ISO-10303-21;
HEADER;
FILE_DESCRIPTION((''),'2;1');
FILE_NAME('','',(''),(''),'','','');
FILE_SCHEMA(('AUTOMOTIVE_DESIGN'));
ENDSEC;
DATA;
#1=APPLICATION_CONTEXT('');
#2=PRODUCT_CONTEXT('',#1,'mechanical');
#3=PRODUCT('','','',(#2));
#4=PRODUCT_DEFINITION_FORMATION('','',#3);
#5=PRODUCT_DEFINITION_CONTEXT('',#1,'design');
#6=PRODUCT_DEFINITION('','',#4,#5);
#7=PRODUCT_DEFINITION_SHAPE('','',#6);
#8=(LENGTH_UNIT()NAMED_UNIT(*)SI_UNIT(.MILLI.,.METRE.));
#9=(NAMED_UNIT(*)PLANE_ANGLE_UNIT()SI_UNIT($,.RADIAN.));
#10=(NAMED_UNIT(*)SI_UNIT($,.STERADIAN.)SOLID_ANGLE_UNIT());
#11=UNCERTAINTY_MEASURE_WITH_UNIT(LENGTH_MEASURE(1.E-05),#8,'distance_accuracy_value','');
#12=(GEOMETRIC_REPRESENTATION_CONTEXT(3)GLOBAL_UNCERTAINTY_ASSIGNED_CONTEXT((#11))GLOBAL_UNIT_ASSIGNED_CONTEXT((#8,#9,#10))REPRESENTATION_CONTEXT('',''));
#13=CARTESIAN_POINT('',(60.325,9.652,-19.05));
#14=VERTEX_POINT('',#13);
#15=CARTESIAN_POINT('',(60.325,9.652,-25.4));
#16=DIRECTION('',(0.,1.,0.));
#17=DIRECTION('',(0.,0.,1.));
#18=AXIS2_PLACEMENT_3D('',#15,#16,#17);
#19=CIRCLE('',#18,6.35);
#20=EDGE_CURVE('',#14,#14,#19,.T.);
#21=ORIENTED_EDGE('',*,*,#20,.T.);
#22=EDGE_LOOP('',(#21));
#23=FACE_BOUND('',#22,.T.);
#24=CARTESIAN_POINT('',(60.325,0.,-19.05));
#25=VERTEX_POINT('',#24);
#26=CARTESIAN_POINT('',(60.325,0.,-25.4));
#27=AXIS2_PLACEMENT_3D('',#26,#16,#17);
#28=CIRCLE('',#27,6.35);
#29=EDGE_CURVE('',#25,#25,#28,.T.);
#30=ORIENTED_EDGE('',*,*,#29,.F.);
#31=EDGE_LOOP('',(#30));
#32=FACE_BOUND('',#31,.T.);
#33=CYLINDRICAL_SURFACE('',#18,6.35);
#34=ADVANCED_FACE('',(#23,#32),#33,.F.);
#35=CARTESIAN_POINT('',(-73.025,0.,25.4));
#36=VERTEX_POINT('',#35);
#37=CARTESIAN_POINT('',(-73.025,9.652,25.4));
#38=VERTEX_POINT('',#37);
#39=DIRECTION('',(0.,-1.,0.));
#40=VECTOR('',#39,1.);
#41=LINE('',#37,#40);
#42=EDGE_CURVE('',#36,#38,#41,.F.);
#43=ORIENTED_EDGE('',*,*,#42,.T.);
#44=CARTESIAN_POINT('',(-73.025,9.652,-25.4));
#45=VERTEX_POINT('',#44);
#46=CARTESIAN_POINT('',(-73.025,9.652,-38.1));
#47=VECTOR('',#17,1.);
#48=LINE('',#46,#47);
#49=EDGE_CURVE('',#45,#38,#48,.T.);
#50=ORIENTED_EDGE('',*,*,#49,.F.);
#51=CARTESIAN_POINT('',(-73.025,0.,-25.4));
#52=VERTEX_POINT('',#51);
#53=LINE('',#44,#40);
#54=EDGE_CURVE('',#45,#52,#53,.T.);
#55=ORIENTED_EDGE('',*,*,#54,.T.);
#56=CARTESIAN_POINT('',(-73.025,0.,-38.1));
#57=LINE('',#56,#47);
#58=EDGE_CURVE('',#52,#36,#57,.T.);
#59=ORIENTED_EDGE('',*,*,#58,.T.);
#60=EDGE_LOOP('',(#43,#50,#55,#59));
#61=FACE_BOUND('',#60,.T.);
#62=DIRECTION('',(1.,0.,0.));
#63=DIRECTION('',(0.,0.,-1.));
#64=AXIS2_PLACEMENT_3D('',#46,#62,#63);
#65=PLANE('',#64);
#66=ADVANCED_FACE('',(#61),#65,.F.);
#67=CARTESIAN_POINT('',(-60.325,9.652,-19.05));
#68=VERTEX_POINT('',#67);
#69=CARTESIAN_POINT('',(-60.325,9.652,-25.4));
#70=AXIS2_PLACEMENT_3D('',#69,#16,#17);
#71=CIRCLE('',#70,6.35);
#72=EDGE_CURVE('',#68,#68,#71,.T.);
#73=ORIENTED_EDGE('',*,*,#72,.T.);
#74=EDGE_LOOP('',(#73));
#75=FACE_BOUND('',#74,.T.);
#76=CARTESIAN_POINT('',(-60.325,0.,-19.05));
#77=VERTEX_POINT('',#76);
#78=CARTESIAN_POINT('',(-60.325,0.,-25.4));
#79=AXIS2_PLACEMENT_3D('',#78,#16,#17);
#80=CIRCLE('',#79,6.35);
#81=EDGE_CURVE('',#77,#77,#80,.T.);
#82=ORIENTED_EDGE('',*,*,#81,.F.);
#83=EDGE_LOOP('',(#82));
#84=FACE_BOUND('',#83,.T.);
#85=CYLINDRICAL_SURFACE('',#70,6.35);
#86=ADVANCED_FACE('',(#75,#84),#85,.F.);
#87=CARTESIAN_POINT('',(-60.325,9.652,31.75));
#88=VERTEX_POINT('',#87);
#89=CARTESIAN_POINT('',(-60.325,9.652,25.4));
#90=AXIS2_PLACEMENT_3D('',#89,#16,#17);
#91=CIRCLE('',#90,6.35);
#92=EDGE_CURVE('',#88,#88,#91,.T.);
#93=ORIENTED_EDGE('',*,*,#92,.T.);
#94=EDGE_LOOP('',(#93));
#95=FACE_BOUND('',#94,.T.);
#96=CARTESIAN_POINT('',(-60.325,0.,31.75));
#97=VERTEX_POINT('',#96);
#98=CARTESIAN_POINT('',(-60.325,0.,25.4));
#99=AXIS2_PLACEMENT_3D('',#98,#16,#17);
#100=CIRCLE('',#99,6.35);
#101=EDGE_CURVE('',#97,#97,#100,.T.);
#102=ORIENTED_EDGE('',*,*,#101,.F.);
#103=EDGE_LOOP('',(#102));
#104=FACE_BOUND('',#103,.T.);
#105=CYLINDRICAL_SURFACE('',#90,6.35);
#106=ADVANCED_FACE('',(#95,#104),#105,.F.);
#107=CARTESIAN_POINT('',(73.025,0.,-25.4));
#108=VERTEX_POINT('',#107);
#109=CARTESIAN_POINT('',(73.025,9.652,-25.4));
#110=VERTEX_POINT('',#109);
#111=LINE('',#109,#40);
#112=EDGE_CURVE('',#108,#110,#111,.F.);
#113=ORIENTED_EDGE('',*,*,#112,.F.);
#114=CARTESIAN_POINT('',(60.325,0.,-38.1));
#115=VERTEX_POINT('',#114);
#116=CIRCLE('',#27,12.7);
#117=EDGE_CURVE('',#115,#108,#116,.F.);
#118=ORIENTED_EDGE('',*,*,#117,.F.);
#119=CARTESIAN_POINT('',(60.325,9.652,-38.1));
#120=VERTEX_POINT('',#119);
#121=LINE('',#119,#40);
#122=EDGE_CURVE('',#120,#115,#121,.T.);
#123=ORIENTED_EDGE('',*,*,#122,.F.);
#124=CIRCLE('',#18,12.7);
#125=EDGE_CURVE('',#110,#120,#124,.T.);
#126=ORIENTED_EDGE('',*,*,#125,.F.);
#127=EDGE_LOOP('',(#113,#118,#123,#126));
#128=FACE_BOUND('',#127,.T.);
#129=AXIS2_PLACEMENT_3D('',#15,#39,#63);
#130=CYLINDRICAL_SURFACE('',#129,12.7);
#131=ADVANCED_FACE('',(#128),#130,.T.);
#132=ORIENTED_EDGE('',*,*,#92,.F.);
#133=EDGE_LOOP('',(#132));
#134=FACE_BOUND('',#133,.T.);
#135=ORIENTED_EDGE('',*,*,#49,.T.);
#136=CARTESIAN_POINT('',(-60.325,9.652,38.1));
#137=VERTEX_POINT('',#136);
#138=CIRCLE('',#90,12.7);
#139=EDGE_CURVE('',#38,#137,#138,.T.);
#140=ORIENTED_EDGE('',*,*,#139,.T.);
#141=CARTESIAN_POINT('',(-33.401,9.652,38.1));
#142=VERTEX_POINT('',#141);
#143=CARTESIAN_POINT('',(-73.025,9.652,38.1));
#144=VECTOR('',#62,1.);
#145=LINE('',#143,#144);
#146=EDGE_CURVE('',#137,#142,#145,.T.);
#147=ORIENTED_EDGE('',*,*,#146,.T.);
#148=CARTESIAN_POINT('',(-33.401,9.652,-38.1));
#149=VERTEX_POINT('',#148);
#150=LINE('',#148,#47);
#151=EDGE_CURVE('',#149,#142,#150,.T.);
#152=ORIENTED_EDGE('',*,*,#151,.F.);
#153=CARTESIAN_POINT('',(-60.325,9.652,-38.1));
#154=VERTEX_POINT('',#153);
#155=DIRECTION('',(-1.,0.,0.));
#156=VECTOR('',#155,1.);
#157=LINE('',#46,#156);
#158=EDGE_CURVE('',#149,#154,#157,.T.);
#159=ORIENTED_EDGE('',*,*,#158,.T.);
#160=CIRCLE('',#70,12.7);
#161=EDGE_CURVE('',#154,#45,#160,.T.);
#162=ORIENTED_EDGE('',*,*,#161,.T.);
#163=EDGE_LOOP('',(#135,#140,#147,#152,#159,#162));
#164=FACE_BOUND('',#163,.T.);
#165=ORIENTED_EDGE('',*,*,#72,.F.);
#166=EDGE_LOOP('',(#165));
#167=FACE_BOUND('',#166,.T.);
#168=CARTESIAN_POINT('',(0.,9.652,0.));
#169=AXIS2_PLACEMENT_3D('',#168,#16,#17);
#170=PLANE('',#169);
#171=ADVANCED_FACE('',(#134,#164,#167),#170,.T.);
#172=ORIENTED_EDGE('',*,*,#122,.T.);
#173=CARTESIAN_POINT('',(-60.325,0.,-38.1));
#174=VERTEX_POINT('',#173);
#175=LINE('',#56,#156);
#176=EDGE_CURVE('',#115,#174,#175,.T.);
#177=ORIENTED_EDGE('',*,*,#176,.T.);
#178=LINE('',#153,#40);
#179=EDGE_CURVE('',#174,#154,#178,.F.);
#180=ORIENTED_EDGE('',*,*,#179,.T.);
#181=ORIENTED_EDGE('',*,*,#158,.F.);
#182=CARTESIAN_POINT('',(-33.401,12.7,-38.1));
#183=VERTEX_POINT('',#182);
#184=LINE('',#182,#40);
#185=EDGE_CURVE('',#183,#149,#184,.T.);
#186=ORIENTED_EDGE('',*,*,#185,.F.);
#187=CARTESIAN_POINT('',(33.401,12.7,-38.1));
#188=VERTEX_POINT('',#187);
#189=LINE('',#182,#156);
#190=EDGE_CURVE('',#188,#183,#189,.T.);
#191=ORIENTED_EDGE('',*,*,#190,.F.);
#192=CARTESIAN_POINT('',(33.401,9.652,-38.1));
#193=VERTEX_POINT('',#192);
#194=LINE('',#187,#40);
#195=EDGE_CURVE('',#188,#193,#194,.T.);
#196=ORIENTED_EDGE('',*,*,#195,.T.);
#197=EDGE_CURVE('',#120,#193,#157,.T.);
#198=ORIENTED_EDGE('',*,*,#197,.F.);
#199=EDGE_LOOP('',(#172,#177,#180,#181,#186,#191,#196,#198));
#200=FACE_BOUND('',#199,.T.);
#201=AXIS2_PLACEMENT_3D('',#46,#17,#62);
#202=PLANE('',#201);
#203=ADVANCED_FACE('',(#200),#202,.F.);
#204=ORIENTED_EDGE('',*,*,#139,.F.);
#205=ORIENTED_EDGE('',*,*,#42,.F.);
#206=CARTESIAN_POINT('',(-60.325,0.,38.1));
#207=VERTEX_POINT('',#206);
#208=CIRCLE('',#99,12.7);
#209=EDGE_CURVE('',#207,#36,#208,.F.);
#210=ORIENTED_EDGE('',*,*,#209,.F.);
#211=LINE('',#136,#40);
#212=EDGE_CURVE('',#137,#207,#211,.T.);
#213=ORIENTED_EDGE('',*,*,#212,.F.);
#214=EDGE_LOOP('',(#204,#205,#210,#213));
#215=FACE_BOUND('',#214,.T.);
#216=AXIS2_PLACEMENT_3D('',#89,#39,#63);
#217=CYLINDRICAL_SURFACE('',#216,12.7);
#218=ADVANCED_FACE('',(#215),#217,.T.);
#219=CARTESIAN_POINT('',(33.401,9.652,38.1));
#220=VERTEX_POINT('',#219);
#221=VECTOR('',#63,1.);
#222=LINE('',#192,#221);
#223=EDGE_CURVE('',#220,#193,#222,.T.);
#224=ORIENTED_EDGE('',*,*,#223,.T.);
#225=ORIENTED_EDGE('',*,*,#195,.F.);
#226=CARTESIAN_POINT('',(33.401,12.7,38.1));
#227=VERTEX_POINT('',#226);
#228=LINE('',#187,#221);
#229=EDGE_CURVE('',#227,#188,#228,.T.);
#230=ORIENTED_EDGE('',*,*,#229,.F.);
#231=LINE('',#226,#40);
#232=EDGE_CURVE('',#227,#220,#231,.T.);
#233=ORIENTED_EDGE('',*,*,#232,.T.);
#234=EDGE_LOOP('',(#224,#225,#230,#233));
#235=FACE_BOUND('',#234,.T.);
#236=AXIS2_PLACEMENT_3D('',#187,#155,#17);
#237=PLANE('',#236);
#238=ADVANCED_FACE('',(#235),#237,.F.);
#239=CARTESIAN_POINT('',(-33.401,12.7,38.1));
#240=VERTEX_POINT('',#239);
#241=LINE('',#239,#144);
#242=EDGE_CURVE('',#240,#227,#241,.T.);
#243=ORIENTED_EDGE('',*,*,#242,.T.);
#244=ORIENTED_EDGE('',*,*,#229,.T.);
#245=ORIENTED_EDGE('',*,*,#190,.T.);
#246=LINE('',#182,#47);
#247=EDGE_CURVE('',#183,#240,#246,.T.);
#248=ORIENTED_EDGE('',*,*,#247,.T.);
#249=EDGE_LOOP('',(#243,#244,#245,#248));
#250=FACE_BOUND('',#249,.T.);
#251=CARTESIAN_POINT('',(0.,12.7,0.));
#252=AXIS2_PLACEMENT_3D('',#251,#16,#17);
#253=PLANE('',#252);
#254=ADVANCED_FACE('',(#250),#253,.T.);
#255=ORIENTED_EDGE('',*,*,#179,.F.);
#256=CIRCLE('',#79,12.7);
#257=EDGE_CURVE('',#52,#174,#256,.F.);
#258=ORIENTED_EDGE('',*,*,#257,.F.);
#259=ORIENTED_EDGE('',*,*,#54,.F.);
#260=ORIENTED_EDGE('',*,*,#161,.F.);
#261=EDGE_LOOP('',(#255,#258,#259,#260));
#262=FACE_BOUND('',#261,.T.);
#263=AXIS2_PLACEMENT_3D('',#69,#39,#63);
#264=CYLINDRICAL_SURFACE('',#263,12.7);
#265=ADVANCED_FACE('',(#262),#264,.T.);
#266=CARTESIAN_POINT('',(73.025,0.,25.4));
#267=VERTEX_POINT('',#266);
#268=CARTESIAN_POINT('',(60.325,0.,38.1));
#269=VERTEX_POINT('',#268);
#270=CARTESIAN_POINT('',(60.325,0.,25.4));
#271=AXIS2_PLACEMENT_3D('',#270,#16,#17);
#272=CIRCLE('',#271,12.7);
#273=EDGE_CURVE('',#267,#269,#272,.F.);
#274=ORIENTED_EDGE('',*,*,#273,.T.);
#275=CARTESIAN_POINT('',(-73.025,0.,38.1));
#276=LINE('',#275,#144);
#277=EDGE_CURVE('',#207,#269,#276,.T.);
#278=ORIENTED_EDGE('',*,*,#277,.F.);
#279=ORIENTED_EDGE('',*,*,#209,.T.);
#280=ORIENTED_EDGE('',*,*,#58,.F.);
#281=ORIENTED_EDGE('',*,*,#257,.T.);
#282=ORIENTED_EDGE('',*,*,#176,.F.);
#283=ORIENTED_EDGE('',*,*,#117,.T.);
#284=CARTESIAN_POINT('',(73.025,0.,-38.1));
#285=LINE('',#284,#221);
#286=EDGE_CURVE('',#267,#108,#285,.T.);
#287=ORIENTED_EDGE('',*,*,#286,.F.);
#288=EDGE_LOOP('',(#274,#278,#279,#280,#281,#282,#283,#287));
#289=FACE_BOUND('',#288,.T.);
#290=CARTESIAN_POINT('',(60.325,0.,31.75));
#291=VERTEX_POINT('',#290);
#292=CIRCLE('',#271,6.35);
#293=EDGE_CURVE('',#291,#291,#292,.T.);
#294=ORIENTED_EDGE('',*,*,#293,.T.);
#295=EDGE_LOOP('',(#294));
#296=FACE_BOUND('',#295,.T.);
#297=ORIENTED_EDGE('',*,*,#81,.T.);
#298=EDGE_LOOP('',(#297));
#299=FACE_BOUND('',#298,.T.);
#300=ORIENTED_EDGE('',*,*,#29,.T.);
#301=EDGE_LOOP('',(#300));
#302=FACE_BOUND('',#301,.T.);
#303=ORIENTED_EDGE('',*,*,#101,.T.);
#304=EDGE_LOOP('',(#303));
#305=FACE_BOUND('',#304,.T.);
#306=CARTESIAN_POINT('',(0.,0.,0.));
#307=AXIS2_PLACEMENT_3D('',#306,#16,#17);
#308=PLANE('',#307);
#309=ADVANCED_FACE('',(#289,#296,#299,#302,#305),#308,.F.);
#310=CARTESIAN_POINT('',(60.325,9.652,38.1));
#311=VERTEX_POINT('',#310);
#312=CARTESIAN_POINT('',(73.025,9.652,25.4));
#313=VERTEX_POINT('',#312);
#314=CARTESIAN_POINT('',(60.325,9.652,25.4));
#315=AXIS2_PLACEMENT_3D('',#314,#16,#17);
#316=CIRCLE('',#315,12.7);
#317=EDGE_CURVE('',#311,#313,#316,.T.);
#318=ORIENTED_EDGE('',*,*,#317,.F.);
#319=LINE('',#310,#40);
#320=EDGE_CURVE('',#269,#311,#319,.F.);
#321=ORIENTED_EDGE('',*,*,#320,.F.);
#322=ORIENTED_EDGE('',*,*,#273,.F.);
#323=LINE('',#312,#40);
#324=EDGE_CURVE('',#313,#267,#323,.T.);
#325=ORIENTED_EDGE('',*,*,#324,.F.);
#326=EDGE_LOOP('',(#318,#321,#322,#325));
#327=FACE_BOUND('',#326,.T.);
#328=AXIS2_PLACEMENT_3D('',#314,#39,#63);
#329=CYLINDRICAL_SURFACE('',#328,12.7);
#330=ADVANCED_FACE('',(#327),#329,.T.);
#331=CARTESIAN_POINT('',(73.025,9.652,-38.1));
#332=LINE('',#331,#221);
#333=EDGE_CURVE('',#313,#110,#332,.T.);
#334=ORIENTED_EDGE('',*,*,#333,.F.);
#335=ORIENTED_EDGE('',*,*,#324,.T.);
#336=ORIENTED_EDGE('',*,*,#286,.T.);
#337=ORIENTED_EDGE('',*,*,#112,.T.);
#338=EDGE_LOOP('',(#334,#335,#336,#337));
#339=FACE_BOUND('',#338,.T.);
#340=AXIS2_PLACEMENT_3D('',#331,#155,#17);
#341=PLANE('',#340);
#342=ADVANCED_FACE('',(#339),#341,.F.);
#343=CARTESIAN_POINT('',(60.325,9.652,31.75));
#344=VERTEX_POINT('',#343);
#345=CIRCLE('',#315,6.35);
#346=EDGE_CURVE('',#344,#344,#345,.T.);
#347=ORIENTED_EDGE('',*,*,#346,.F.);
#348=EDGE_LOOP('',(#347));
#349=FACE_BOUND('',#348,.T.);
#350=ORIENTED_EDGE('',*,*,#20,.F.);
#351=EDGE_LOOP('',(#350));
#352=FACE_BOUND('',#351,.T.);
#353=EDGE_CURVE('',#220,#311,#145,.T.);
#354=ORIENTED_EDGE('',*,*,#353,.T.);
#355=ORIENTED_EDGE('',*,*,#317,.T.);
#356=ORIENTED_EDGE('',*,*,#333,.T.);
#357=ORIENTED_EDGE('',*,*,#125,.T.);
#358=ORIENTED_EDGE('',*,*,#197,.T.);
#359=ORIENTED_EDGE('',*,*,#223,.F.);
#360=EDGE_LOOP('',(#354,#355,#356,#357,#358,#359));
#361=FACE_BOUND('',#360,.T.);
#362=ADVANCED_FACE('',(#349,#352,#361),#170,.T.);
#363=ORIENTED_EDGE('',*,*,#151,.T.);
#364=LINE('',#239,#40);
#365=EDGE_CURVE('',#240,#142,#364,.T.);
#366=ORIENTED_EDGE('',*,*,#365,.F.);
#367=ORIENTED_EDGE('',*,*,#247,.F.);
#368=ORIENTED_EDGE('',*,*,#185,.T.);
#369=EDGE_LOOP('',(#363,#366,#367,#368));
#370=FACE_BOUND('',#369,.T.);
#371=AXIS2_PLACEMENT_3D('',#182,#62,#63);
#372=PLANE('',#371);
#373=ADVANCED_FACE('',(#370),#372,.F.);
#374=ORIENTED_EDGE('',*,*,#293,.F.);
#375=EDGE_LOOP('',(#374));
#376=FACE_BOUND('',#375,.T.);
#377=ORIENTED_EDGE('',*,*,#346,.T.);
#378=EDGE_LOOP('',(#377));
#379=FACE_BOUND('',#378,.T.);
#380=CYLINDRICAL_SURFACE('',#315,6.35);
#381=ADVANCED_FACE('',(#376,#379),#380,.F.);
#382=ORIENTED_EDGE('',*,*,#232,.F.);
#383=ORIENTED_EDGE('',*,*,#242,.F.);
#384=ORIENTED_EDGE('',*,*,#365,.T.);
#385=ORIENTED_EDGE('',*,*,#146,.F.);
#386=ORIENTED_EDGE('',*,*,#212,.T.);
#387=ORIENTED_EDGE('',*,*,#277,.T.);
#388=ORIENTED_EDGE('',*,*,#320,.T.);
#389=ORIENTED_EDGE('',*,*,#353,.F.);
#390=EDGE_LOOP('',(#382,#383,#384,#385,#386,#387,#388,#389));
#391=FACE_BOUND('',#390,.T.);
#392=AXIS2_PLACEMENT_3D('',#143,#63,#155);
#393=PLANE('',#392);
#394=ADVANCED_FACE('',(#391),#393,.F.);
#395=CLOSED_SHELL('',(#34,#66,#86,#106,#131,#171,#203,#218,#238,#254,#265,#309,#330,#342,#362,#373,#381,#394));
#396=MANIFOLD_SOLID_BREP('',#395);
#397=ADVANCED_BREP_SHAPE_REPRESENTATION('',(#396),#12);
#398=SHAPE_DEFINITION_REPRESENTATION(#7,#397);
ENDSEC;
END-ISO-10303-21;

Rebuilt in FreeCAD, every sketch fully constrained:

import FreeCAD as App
import Part
import Sketcher

V = App.Vector
Q = App.Units.Quantity


def edges_at(feature, points):
    """Names of the edges that pass closest to the given points."""
    edges = feature.Shape.Edges
    near = lambda p: min(range(len(edges)), key=lambda i: edges[i].distToShape(Part.Vertex(*p))[0])
    return sorted({f"Edge{near(p) + 1}" for p in points})

doc = App.newDocument("Part")
body = doc.addObject("PartDesign::Body", "Body")

# Sketch on XZ plane
sketch1 = doc.addObject("Sketcher::SketchObject", "Sketch")
body.addObject(sketch1)
sketch1.AttachmentSupport = (doc.XZ_Plane, [""])
sketch1.MapMode = "FlatFace"
sketch1.addGeometry([
    Part.LineSegment(V(-73, -38, 0), V(-73, 38, 0)),
    Part.LineSegment(V(-73, 38, 0), V(73, 38, 0)),
    Part.LineSegment(V(73, 38, 0), V(73, -38, 0)),
    Part.LineSegment(V(73, -38, 0), V(-73, -38, 0)),
], False)
sketch1.addConstraint([
    Sketcher.Constraint("Coincident", 0, 2, 1, 1),
    Sketcher.Constraint("Coincident", 1, 2, 2, 1),
    Sketcher.Constraint("Coincident", 2, 2, 3, 1),
    Sketcher.Constraint("Coincident", 3, 2, 0, 1),
    Sketcher.Constraint("Vertical", 0),
    Sketcher.Constraint("Horizontal", 1),
    Sketcher.Constraint("Vertical", 2),
    Sketcher.Constraint("Horizontal", 3),
    Sketcher.Constraint("Symmetric", 0, 2, 2, 2, -1, 1),
    Sketcher.Constraint("DistanceY", 0, 1, 0, 2, Q("3 in")),
    Sketcher.Constraint("DistanceX", 1, 1, 1, 2, Q("5.75 in")),
])
pad1 = doc.addObject("PartDesign::Pad", "Pad")
body.addObject(pad1)
pad1.Profile = sketch1
pad1.Length = Q("0.38 in")
pad1.Reversed = True

# Sketch on XZ plane
sketch2 = doc.addObject("Sketcher::SketchObject", "Sketch001")
body.addObject(sketch2)
sketch2.AttachmentSupport = (doc.XZ_Plane, [""])
sketch2.MapMode = "FlatFace"
sketch2.AttachmentOffset = App.Placement(V(0, 0, -0.38 * 25.4), App.Rotation())
sketch2.addGeometry([
    Part.LineSegment(V(-33, -38, 0), V(-33, 38, 0)),
    Part.LineSegment(V(-33, 38, 0), V(33, 38, 0)),
    Part.LineSegment(V(33, 38, 0), V(33, -38, 0)),
    Part.LineSegment(V(33, -38, 0), V(-33, -38, 0)),
], False)
sketch2.addConstraint([
    Sketcher.Constraint("Coincident", 0, 2, 1, 1),
    Sketcher.Constraint("Coincident", 1, 2, 2, 1),
    Sketcher.Constraint("Coincident", 2, 2, 3, 1),
    Sketcher.Constraint("Coincident", 3, 2, 0, 1),
    Sketcher.Constraint("Vertical", 0),
    Sketcher.Constraint("Horizontal", 1),
    Sketcher.Constraint("Vertical", 2),
    Sketcher.Constraint("Horizontal", 3),
    Sketcher.Constraint("Symmetric", 0, 2, 2, 2, -1, 1),
    Sketcher.Constraint("DistanceY", 0, 1, 0, 2, Q("3 in")),
    Sketcher.Constraint("DistanceX", 1, 1, 1, 2, Q("2.63 in")),
])
pad2 = doc.addObject("PartDesign::Pad", "Pad001")
body.addObject(pad2)
pad2.Profile = sketch2
pad2.Length = Q("0.12 in")
pad2.Reversed = True
doc.recompute()

fillet = doc.addObject("PartDesign::Fillet", "Fillet")
body.addObject(fillet)
fillet.Base = (pad2, edges_at(pad2, [
    (73.025, 4.826, 38.1),
    (-73.025, 4.826, 38.1),
    (-73.025, 4.826, -38.1),
    (73.025, 4.826, -38.1),
]))
fillet.Radius = Q("0.5 in")

# Sketch on XZ plane
sketch3 = doc.addObject("Sketcher::SketchObject", "Sketch002")
body.addObject(sketch3)
sketch3.AttachmentSupport = (doc.XZ_Plane, [""])
sketch3.MapMode = "FlatFace"
sketch3.AttachmentOffset = App.Placement(V(0, 0, -0.38 * 25.4), App.Rotation())
sketch3.addGeometry([
    Part.Circle(V(-60, -25, 0), V(0, 0, 1), 6),
    Part.Circle(V(-60, 25, 0), V(0, 0, 1), 6),
    Part.Circle(V(60, 25, 0), V(0, 0, 1), 6),
    Part.Circle(V(60, -25, 0), V(0, 0, 1), 6),
], False)
sketch3.addConstraint([
    Sketcher.Constraint("Equal", 0, 1),
    Sketcher.Constraint("Equal", 1, 2),
    Sketcher.Constraint("Equal", 2, 3),
    Sketcher.Constraint("Symmetric", 0, 3, 2, 3, -1, 1),
    Sketcher.Constraint("Symmetric", 1, 3, 3, 3, -1, 1),
    Sketcher.Constraint("Symmetric", 1, 3, 2, 3, -2),
    Sketcher.Constraint("Diameter", 0, Q("0.5 in")),
    Sketcher.Constraint("DistanceY", 0, 3, -1, 1, Q("1 in")),
    Sketcher.Constraint("DistanceX", 1, 3, 2, 3, Q("4.75 in")),
])
doc.recompute()
hole = doc.addObject("PartDesign::Hole", "Hole")
body.addObject(hole)
hole.Profile = sketch3
hole.ThreadType = "None"
hole.Diameter = Q("0.5 in")
hole.DepthType = "ThroughAll"
hole.Reversed = True

doc.recompute()
